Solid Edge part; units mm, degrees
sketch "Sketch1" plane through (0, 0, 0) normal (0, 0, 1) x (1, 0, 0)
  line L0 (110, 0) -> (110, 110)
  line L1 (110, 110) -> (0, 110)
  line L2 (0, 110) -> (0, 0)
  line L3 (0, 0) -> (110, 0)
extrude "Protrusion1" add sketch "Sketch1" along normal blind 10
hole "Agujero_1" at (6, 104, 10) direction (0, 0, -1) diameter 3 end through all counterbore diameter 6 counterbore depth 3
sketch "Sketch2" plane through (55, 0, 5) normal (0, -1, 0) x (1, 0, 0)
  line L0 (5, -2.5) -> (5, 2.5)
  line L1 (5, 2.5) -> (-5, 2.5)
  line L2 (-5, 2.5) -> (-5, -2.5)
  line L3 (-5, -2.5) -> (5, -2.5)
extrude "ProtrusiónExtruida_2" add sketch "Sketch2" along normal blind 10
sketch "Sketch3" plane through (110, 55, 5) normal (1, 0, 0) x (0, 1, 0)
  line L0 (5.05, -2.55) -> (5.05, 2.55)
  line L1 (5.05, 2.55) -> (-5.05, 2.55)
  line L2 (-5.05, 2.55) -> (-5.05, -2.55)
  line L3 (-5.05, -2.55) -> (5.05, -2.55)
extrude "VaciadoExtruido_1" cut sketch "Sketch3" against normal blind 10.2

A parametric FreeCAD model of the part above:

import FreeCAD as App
import Part
import Sketcher

V = App.Vector
Q = App.Units.Quantity


def add_polygon(sketch, points):
    """Adds a closed chain of lines whose ends are joined by coincident constraints."""
    first, n = sketch.GeometryCount, len(points)
    for a, b in zip(points, points[1:] + points[:1]):
        sketch.addGeometry(Part.LineSegment(App.Vector(*a, 0), App.Vector(*b, 0)), False)
    for i in range(n):
        sketch.addConstraint(Sketcher.Constraint("Coincident", first + i, 2, first + (i + 1) % n, 1))

doc = App.newDocument("Part")
body = doc.addObject("PartDesign::Body", "Body")

sketch1 = body.newObject("Sketcher::SketchObject", "Sketch")
sketch1.AttachmentSupport = (doc.getObject("XY_Plane"), [""])
sketch1.MapMode = "FlatFace"
add_polygon(sketch1, [(0, 0), (110, 0), (110, 110), (0, 110)])
sketch1.addConstraint(Sketcher.Constraint("Horizontal", 0))
sketch1.addConstraint(Sketcher.Constraint("Vertical", 1))
sketch1.addConstraint(Sketcher.Constraint("Horizontal", 2))
sketch1.addConstraint(Sketcher.Constraint("Vertical", 3))
sketch1.addConstraint(Sketcher.Constraint("Coincident", 3, 2, -1, 1))
sketch1.addConstraint(Sketcher.Constraint("Equal", 2, 1))
sketch1.addConstraint(Sketcher.Constraint("DistanceX", 0, 1, 0, 2, Q("110 mm")))
pad1 = body.newObject("PartDesign::Pad", "Pad")
pad1.Profile = sketch1
pad1.Length = 10

sketch2 = body.newObject("Sketcher::SketchObject", "Sketch001")
sketch2.AttachmentSupport = (doc.getObject("XY_Plane"), [""])
sketch2.MapMode = "FlatFace"
sketch2.AttachmentOffset = App.Placement(V(0, 0, 10), App.Rotation())
sketch2.addGeometry(Part.Circle(V(6, 104, 0), V(0, 0, 1), 1.5), False)
sketch2.addConstraint(Sketcher.Constraint("Diameter", 0, Q("3 mm")))
sketch2.addConstraint(Sketcher.Constraint("DistanceX", -1, 1, 0, 3, Q("6 mm")))
sketch2.addConstraint(Sketcher.Constraint("DistanceY", -1, 1, 0, 3, Q("104 mm")))
doc.recompute()
hole = body.newObject("PartDesign::Hole", "Hole")
hole.Profile = sketch2
hole.ThreadType = "None"
hole.Diameter = 3
hole.DepthType = "ThroughAll"
hole.HoleCutType = "Counterbore"
hole.HoleCutDiameter = 6
hole.HoleCutDepth = 3

sketch3 = body.newObject("Sketcher::SketchObject", "Sketch002")
sketch3.AttachmentSupport = (doc.getObject("XZ_Plane"), [""])
sketch3.MapMode = "FlatFace"
add_polygon(sketch3, [(50, 2), (60, 2), (60, 8), (50, 8)])
sketch3.addConstraint(Sketcher.Constraint("Horizontal", 0))
sketch3.addConstraint(Sketcher.Constraint("Vertical", 1))
sketch3.addConstraint(Sketcher.Constraint("Horizontal", 2))
sketch3.addConstraint(Sketcher.Constraint("Vertical", 3))
sketch3.addConstraint(Sketcher.Constraint("DistanceX", 0, 1, 0, 2, Q("10 mm")))
sketch3.addConstraint(Sketcher.Constraint("DistanceY", 1, 1, 1, 2, Q("5 mm")))
sketch3.addConstraint(Sketcher.Constraint("DistanceX", -1, 1, 0, 2, Q("60 mm")))
sketch3.addConstraint(Sketcher.Constraint("DistanceY", -1, 1, 0, 2, Q("2.5 mm")))
pad2 = body.newObject("PartDesign::Pad", "Pad001")
pad2.Profile = sketch3
pad2.Length = 10

sketch4 = body.newObject("Sketcher::SketchObject", "Sketch003")
sketch4.AttachmentSupport = (doc.getObject("YZ_Plane"), [""])
sketch4.MapMode = "FlatFace"
sketch4.AttachmentOffset = App.Placement(V(0, 0, 110), App.Rotation())
add_polygon(sketch4, [(50, 2), (60, 2), (60, 8), (50, 8)])
sketch4.addConstraint(Sketcher.Constraint("Horizontal", 0))
sketch4.addConstraint(Sketcher.Constraint("Vertical", 1))
sketch4.addConstraint(Sketcher.Constraint("Horizontal", 2))
sketch4.addConstraint(Sketcher.Constraint("Vertical", 3))
sketch4.addConstraint(Sketcher.Constraint("DistanceX", 0, 1, 0, 2, Q("10.1 mm")))
sketch4.addConstraint(Sketcher.Constraint("DistanceY", 1, 1, 1, 2, Q("5.1 mm")))
sketch4.addConstraint(Sketcher.Constraint("DistanceX", -1, 1, 0, 2, Q("60.05 mm")))
sketch4.addConstraint(Sketcher.Constraint("DistanceY", -1, 1, 0, 2, Q("2.45 mm")))
pocket1 = body.newObject("PartDesign::Pocket", "Pocket")
pocket1.Profile = sketch4
pocket1.Length = 10.2

doc.recompute()
